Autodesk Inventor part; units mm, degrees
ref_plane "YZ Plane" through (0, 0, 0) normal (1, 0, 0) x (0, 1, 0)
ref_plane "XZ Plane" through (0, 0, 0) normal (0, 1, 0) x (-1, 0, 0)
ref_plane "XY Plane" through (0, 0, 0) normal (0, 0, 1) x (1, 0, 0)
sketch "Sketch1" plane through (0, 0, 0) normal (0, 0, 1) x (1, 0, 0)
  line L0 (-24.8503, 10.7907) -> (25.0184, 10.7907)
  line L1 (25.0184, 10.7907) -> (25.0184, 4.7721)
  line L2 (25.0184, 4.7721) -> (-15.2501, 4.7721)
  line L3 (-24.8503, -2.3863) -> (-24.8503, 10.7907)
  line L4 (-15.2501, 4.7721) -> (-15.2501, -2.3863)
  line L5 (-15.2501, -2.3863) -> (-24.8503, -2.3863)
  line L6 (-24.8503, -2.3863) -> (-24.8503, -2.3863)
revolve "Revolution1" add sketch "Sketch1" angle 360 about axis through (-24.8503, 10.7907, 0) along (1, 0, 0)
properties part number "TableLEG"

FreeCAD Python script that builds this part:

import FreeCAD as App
import Part
import Sketcher

V = App.Vector


def add_polygon(sketch, points):
    """Adds a closed chain of lines whose ends are joined by coincident constraints."""
    first, n = sketch.GeometryCount, len(points)
    for a, b in zip(points, points[1:] + points[:1]):
        sketch.addGeometry(Part.LineSegment(App.Vector(*a, 0), App.Vector(*b, 0)), False)
    for i in range(n):
        sketch.addConstraint(Sketcher.Constraint("Coincident", first + i, 2, first + (i + 1) % n, 1))

doc = App.newDocument("Part")
params = doc.addObject("Spreadsheet::Sheet", "Params")
for row, (alias, value) in enumerate([
    ("revolution_angle", "360 deg"),
], start=1):
    params.set(f"A{row}", alias)
    params.set(f"B{row}", "=" + value)
    params.setAlias(f"B{row}", alias)

body = doc.addObject("PartDesign::Body", "Body")

sketch1 = doc.addObject("Sketcher::SketchObject", "Sketch")
body.addObject(sketch1)
sketch1.AttachmentSupport = (doc.XY_Plane, [""])
sketch1.MapMode = "FlatFace"
add_polygon(sketch1, [(25, 11), (-25, 11), (-25, -2), (-15, -2), (-15, 5), (25, 5)])
sketch1.addGeometry(Part.LineSegment(V(-25, 11, 0), V(25, 11, 0)), True)
sketch1.addConstraint(Sketcher.Constraint("Horizontal", 0))
sketch1.addConstraint(Sketcher.Constraint("Vertical", 1))
sketch1.addConstraint(Sketcher.Constraint("Horizontal", 2))
sketch1.addConstraint(Sketcher.Constraint("Vertical", 3))
sketch1.addConstraint(Sketcher.Constraint("Horizontal", 4))
sketch1.addConstraint(Sketcher.Constraint("Vertical", 5))
sketch1.addConstraint(Sketcher.Constraint("Horizontal", 6))
sketch1.addConstraint(Sketcher.Constraint("Coincident", 6, 1, 0, 2))
sketch1.addConstraint(Sketcher.Constraint("Vertical", 4, 2, 6, 2))
sketch1.addConstraint(Sketcher.Constraint("DistanceY", 1, 2, 1, 1, 13.177))
sketch1.addConstraint(Sketcher.Constraint("DistanceX", 2, 2, -1, 1, 15.25))
sketch1.addConstraint(Sketcher.Constraint("DistanceX", 0, 2, 0, 1, 49.8687))
sketch1.addConstraint(Sketcher.Constraint("DistanceX", 2, 1, 2, 2, 9.6002))
sketch1.addConstraint(Sketcher.Constraint("DistanceY", 3, 1, 3, 2, 7.1584))
sketch1.addConstraint(Sketcher.Constraint("DistanceY", -1, 1, 3, 2, 4.772))
revolution = doc.addObject("PartDesign::Revolution", "Revolution")
body.addObject(revolution)
revolution.Profile = sketch1
revolution.ReferenceAxis = (sketch1, ["Axis0"])
revolution.setExpression("Angle", "Params.revolution_angle")

doc.recompute()
